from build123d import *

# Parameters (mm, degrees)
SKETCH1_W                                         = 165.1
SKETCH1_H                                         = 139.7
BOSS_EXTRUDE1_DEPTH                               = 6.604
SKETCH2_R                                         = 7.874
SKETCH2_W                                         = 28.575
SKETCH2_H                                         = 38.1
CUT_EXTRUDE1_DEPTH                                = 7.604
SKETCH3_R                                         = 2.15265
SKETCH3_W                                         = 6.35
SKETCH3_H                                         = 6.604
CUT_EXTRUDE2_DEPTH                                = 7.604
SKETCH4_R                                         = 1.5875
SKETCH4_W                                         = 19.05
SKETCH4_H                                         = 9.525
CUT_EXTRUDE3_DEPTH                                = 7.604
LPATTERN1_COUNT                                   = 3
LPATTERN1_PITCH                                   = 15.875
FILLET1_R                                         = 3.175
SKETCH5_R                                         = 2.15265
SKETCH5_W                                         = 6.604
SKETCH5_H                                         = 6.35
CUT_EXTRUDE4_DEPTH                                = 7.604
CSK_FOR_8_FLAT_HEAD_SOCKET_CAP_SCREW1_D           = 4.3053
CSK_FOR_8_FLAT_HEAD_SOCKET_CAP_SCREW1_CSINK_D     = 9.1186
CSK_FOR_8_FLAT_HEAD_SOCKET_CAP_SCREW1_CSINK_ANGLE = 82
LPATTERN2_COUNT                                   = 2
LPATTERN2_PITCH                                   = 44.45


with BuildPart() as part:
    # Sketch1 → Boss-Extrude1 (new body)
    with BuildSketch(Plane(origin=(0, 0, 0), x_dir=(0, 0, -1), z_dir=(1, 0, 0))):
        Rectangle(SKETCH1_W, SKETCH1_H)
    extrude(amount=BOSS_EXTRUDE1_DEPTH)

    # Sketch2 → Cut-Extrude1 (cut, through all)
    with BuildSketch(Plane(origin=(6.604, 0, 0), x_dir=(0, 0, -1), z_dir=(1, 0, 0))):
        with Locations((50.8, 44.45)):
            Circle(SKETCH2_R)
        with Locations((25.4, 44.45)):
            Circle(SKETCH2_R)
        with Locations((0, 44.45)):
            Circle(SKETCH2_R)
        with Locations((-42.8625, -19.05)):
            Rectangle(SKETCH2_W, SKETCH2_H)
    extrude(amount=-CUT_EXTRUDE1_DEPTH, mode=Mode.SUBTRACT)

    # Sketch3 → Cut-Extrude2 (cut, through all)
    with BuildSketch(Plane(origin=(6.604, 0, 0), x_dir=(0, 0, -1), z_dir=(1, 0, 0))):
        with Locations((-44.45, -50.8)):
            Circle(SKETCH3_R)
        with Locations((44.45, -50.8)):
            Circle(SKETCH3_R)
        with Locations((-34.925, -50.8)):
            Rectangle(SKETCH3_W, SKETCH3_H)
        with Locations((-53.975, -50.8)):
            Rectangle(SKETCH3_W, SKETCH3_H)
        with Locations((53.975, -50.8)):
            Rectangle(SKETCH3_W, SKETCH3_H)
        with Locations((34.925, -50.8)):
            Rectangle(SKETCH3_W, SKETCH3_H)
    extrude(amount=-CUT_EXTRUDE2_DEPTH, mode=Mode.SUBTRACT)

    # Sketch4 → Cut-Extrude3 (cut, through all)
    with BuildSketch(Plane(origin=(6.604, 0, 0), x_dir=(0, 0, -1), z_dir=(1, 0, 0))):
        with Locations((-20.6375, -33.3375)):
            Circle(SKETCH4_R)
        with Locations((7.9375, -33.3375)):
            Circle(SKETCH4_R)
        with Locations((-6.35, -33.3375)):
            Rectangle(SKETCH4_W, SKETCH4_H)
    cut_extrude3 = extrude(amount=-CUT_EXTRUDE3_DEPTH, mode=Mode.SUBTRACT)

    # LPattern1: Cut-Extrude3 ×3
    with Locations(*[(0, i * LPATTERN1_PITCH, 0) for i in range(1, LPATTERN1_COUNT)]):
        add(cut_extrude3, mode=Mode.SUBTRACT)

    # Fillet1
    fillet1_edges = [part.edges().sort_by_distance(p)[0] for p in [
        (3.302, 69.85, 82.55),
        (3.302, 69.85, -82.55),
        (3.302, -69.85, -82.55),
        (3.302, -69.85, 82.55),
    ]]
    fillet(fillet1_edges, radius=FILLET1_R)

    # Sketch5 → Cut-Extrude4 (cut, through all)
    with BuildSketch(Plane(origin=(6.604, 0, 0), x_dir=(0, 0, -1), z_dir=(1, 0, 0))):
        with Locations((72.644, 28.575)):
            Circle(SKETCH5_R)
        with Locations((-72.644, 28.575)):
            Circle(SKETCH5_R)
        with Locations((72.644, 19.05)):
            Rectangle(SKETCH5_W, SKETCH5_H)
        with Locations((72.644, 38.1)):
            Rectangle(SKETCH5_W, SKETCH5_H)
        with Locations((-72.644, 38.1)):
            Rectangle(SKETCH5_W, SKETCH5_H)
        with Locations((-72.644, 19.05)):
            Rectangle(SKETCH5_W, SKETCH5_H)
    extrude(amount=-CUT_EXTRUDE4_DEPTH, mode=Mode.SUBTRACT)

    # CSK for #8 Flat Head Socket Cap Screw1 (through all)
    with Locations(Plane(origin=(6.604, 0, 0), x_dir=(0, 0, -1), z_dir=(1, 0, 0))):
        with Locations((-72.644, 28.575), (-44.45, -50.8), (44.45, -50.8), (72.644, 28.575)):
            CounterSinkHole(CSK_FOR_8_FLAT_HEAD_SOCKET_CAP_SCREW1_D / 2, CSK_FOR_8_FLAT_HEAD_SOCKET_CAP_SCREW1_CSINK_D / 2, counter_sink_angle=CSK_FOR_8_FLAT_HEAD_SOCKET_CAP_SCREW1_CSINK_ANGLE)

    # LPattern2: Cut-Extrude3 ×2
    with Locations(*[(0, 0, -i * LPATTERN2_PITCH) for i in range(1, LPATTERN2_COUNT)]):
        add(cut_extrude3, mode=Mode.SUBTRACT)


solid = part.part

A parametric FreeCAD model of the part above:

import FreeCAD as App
import Part
import Sketcher

V = App.Vector
Q = App.Units.Quantity


def edges_at(feature, points):
    """Names of the edges that pass closest to the given points."""
    edges = feature.Shape.Edges
    near = lambda p: min(range(len(edges)), key=lambda i: edges[i].distToShape(Part.Vertex(*p))[0])
    return sorted({f"Edge{near(p) + 1}" for p in points})

doc = App.newDocument("Part")
params = doc.addObject("Spreadsheet::Sheet", "Params")
for row, (alias, value) in enumerate([
    ("sketch1_width", "5.5 in"),
    ("sketch1_height", "6.5 in"),
    ("pad1_length", "0.26 in"),
    ("sketch2_diameter", "0.62 in"),
    ("sketch2_width", "1.5 in"),
    ("sketch2_height", "1.125 in"),
    ("sketch3_width", "0.26 in"),
    ("sketch3_height", "0.25 in"),
    ("sketch4_diameter", "0.125 in"),
    ("sketch4_height", "0.75 in"),
    ("sketch4_width", "0.375 in"),
    ("linearpattern_pitch", "0.625 in"),
    ("fillet_radius", "0.125 in"),
    ("sketch5_width", "0.25 in"),
    ("sketch5_height", "0.26 in"),
    ("hole_diameter", "0.1695 in"),
    ("hole_csink_diameter", "0.359 in"),
    ("linearpattern2_pitch", "1.75 in"),
], start=1):
    params.set(f"A{row}", alias)
    params.set(f"B{row}", "=" + value)
    params.setAlias(f"B{row}", alias)

body = doc.addObject("PartDesign::Body", "Body")

sketch1 = body.newObject("Sketcher::SketchObject", "Sketch")
sketch1.AttachmentSupport = (doc.getObject("YZ_Plane"), [""])
sketch1.MapMode = "FlatFace"
sketch1.addGeometry([
    Part.LineSegment(V(69.85, 82.55, 0), V(-69.85, 82.55, 0)),
    Part.LineSegment(V(-69.85, 82.55, 0), V(-69.85, -82.55, 0)),
    Part.LineSegment(V(-69.85, -82.55, 0), V(69.85, -82.55, 0)),
    Part.LineSegment(V(69.85, -82.55, 0), V(69.85, 82.55, 0)),
], False)
sketch1.addConstraint([
    Sketcher.Constraint("Coincident", 0, 2, 1, 1),
    Sketcher.Constraint("Coincident", 1, 2, 2, 1),
    Sketcher.Constraint("Coincident", 2, 2, 3, 1),
    Sketcher.Constraint("Coincident", 3, 2, 0, 1),
    Sketcher.Constraint("Horizontal", 0),
    Sketcher.Constraint("Vertical", 1),
    Sketcher.Constraint("Horizontal", 2),
    Sketcher.Constraint("Vertical", 3),
    Sketcher.Constraint("Symmetric", 0, 2, 2, 2, -1, 1),
    Sketcher.Constraint("DistanceX", 0, 2, 0, 1, Q("5.5 in")),
    Sketcher.Constraint("DistanceY", 1, 2, 1, 1, Q("6.5 in")),
])
sketch1.setExpression("Constraints[9]", "Params.sketch1_width")
sketch1.setExpression("Constraints[10]", "Params.sketch1_height")
pad1 = body.newObject("PartDesign::Pad", "Pad")
pad1.Profile = sketch1
pad1.setExpression("Length", "Params.pad1_length")

sketch2 = body.newObject("Sketcher::SketchObject", "Sketch001")
sketch2.AttachmentSupport = (doc.getObject("YZ_Plane"), [""])
sketch2.MapMode = "FlatFace"
sketch2.AttachmentOffset = App.Placement(V(0, 0, 0.26 * 25.4), App.Rotation())
sketch2.addGeometry([
    Part.Circle(V(44.45, -50.8, 0), V(0, 0, 1), 7.874),
    Part.Circle(V(44.45, -25.4, 0), V(0, 0, 1), 7.874),
    Part.Circle(V(44.45, 0, 0), V(0, 0, 1), 7.874),
    Part.LineSegment(V(0, 57.15, 0), V(-38.1, 57.15, 0)),
    Part.LineSegment(V(-38.1, 57.15, 0), V(-38.1, 28.575, 0)),
    Part.LineSegment(V(-38.1, 28.575, 0), V(0, 28.575, 0)),
    Part.LineSegment(V(0, 28.575, 0), V(0, 57.15, 0)),
], False)
sketch2.addConstraint([
    Sketcher.Constraint("Coincident", 3, 2, 4, 1),
    Sketcher.Constraint("Coincident", 4, 2, 5, 1),
    Sketcher.Constraint("Coincident", 5, 2, 6, 1),
    Sketcher.Constraint("Coincident", 6, 2, 3, 1),
    Sketcher.Constraint("Horizontal", 3),
    Sketcher.Constraint("Vertical", 4),
    Sketcher.Constraint("Horizontal", 5),
    Sketcher.Constraint("Vertical", 6),
    Sketcher.Constraint("Equal", 0, 1),
    Sketcher.Constraint("Equal", 1, 2),
    Sketcher.Constraint("PointOnObject", 2, 3, -1),
    Sketcher.Constraint("PointOnObject", 5, 2, -2),
    Sketcher.Constraint("Vertical", 0, 3, 1, 3),
    Sketcher.Constraint("Vertical", 1, 3, 2, 3),
    Sketcher.Constraint("Diameter", 0, Q("0.62 in")),
    Sketcher.Constraint("DistanceX", 3, 2, 3, 1, Q("1.5 in")),
    Sketcher.Constraint("DistanceY", 0, 3, -1, 1, Q("2 in")),
    Sketcher.Constraint("DistanceY", 1, 3, -1, 1, Q("1 in")),
    Sketcher.Constraint("DistanceY", 4, 2, 4, 1, Q("1.125 in")),
    Sketcher.Constraint("DistanceX", -1, 1, 0, 3, Q("1.75 in")),
    Sketcher.Constraint("DistanceY", -1, 1, 3, 2, Q("2.25 in")),
])
sketch2.setExpression("Constraints[14]", "Params.sketch2_diameter")
sketch2.setExpression("Constraints[15]", "Params.sketch2_width")
sketch2.setExpression("Constraints[18]", "Params.sketch2_height")
pocket1 = body.newObject("PartDesign::Pocket", "Pocket")
pocket1.Profile = sketch2
pocket1.Type = "ThroughAll"

sketch3 = body.newObject("Sketcher::SketchObject", "Sketch002")
sketch3.AttachmentSupport = (doc.getObject("YZ_Plane"), [""])
sketch3.MapMode = "FlatFace"
sketch3.AttachmentOffset = App.Placement(V(0, 0, 0.26 * 25.4), App.Rotation())
sketch3.addGeometry([
    Part.Circle(V(-50.8, 44.45, 0), V(0, 0, 1), 2.15265),
    Part.Circle(V(-50.8, -44.45, 0), V(0, 0, 1), 2.15265),
    Part.LineSegment(V(-47.498, 38.1, 0), V(-54.102, 38.1, 0)),
    Part.LineSegment(V(-54.102, 38.1, 0), V(-54.102, 31.75, 0)),
    Part.LineSegment(V(-54.102, 31.75, 0), V(-47.498, 31.75, 0)),
    Part.LineSegment(V(-47.498, 31.75, 0), V(-47.498, 38.1, 0)),
    Part.LineSegment(V(-47.498, 57.15, 0), V(-54.102, 57.15, 0)),
    Part.LineSegment(V(-54.102, 57.15, 0), V(-54.102, 50.8, 0)),
    Part.LineSegment(V(-54.102, 50.8, 0), V(-47.498, 50.8, 0)),
    Part.LineSegment(V(-47.498, 50.8, 0), V(-47.498, 57.15, 0)),
    Part.LineSegment(V(-47.498, -50.8, 0), V(-54.102, -50.8, 0)),
    Part.LineSegment(V(-54.102, -50.8, 0), V(-54.102, -57.15, 0)),
    Part.LineSegment(V(-54.102, -57.15, 0), V(-47.498, -57.15, 0)),
    Part.LineSegment(V(-47.498, -57.15, 0), V(-47.498, -50.8, 0)),
    Part.LineSegment(V(-47.498, -31.75, 0), V(-54.102, -31.75, 0)),
    Part.LineSegment(V(-54.102, -31.75, 0), V(-54.102, -38.1, 0)),
    Part.LineSegment(V(-54.102, -38.1, 0), V(-47.498, -38.1, 0)),
    Part.LineSegment(V(-47.498, -38.1, 0), V(-47.498, -31.75, 0)),
], False)
sketch3.addConstraint([
    Sketcher.Constraint("Coincident", 2, 2, 3, 1),
    Sketcher.Constraint("Coincident", 3, 2, 4, 1),
    Sketcher.Constraint("Coincident", 4, 2, 5, 1),
    Sketcher.Constraint("Coincident", 5, 2, 2, 1),
    Sketcher.Constraint("Coincident", 6, 2, 7, 1),
    Sketcher.Constraint("Coincident", 7, 2, 8, 1),
    Sketcher.Constraint("Coincident", 8, 2, 9, 1),
    Sketcher.Constraint("Coincident", 9, 2, 6, 1),
    Sketcher.Constraint("Coincident", 10, 2, 11, 1),
    Sketcher.Constraint("Coincident", 11, 2, 12, 1),
    Sketcher.Constraint("Coincident", 12, 2, 13, 1),
    Sketcher.Constraint("Coincident", 13, 2, 10, 1),
    Sketcher.Constraint("Coincident", 14, 2, 15, 1),
    Sketcher.Constraint("Coincident", 15, 2, 16, 1),
    Sketcher.Constraint("Coincident", 16, 2, 17, 1),
    Sketcher.Constraint("Coincident", 17, 2, 14, 1),
    Sketcher.Constraint("Horizontal", 2),
    Sketcher.Constraint("Vertical", 3),
    Sketcher.Constraint("Horizontal", 4),
    Sketcher.Constraint("Vertical", 5),
    Sketcher.Constraint("Horizontal", 6),
    Sketcher.Constraint("Vertical", 7),
    Sketcher.Constraint("Horizontal", 8),
    Sketcher.Constraint("Vertical", 9),
    Sketcher.Constraint("Horizontal", 10),
    Sketcher.Constraint("Vertical", 11),
    Sketcher.Constraint("Horizontal", 12),
    Sketcher.Constraint("Vertical", 13),
    Sketcher.Constraint("Horizontal", 14),
    Sketcher.Constraint("Vertical", 15),
    Sketcher.Constraint("Horizontal", 16),
    Sketcher.Constraint("Vertical", 17),
    Sketcher.Constraint("Equal", 0, 1),
    Sketcher.Constraint("Symmetric", 0, 3, 1, 3, -1),
    Sketcher.Constraint("Symmetric", 7, 2, 10, 2, -1),
    Sketcher.Constraint("Symmetric", 9, 2, 12, 2, -1),
    Sketcher.Constraint("Symmetric", 3, 2, 14, 2, -1),
    Sketcher.Constraint("Symmetric", 5, 2, 16, 2, -1),
    Sketcher.Constraint("Vertical", 3, 2, 6, 2),
    Sketcher.Constraint("Vertical", 5, 2, 8, 2),
    Sketcher.Constraint("Equal", 5, 7),
    Sketcher.Constraint("DistanceX", 0, 3, -1, 1, Q("2 in")),
    Sketcher.Constraint("DistanceY", -1, 1, 7, 2, Q("2 in")),
    Sketcher.Constraint("DistanceY", 1, 3, 3, 2, Q("3 in")),
    Sketcher.Constraint("DistanceY", 3, 2, 6, 2, Q("1 in")),
    Sketcher.Constraint("Diameter", 0, Q("0.1695 in")),
    Sketcher.Constraint("DistanceX", 2, 2, 2, 1, Q("0.26 in")),
    Sketcher.Constraint("DistanceY", 3, 2, 3, 1, Q("0.25 in")),
    Sketcher.Constraint("DistanceX", 2, 2, -1, 1, Q("2.13 in")),
])
sketch3.setExpression("Constraints[46]", "Params.sketch3_width")
sketch3.setExpression("Constraints[47]", "Params.sketch3_height")
pocket2 = body.newObject("PartDesign::Pocket", "Pocket001")
pocket2.Profile = sketch3
pocket2.Type = "ThroughAll"

sketch4 = body.newObject("Sketcher::SketchObject", "Sketch003")
sketch4.AttachmentSupport = (doc.getObject("YZ_Plane"), [""])
sketch4.MapMode = "FlatFace"
sketch4.AttachmentOffset = App.Placement(V(0, 0, 0.26 * 25.4), App.Rotation())
sketch4.addGeometry([
    Part.Circle(V(-33.3375, 20.6375, 0), V(0, 0, 1), 1.5875),
    Part.Circle(V(-33.3375, -7.9375, 0), V(0, 0, 1), 1.5875),
    Part.LineSegment(V(-28.575, 15.875, 0), V(-38.1, 15.875, 0)),
    Part.LineSegment(V(-38.1, 15.875, 0), V(-38.1, -3.175, 0)),
    Part.LineSegment(V(-38.1, -3.175, 0), V(-28.575, -3.175, 0)),
    Part.LineSegment(V(-28.575, -3.175, 0), V(-28.575, 15.875, 0)),
], False)
sketch4.addConstraint([
    Sketcher.Constraint("Coincident", 2, 2, 3, 1),
    Sketcher.Constraint("Coincident", 3, 2, 4, 1),
    Sketcher.Constraint("Coincident", 4, 2, 5, 1),
    Sketcher.Constraint("Coincident", 5, 2, 2, 1),
    Sketcher.Constraint("Horizontal", 2),
    Sketcher.Constraint("Vertical", 3),
    Sketcher.Constraint("Horizontal", 4),
    Sketcher.Constraint("Vertical", 5),
    Sketcher.Constraint("Equal", 0, 1),
    Sketcher.Constraint("Vertical", 0, 3, 1, 3),
    Sketcher.Constraint("Diameter", 0, Q("0.125 in")),
    Sketcher.Constraint("DistanceY", 3, 2, 3, 1, Q("0.75 in")),
    Sketcher.Constraint("DistanceX", 2, 2, -1, 1, Q("1.5 in")),
    Sketcher.Constraint("DistanceX", 2, 2, 2, 1, Q("0.375 in")),
    Sketcher.Constraint("DistanceX", 0, 3, -1, 1, Q("1.3125 in")),
    Sketcher.Constraint("DistanceY", -1, 1, 0, 3, Q("0.8125 in")),
    Sketcher.Constraint("DistanceY", 1, 3, -1, 1, Q("0.3125 in")),
    Sketcher.Constraint("DistanceY", -1, 1, 2, 2, Q("0.625 in")),
])
sketch4.setExpression("Constraints[10]", "Params.sketch4_diameter")
sketch4.setExpression("Constraints[11]", "Params.sketch4_height")
sketch4.setExpression("Constraints[13]", "Params.sketch4_width")
pocket3 = body.newObject("PartDesign::Pocket", "Pocket002")
pocket3.Profile = sketch4
pocket3.Type = "ThroughAll"
doc.recompute()

linearpattern = body.newObject("PartDesign::LinearPattern", "LinearPattern")
linearpattern.Originals = [pocket3]
linearpattern.Direction = (doc.getObject("Y_Axis"), [""])
linearpattern.Mode = "offset"
linearpattern.setExpression("Offset", "Params.linearpattern_pitch")
linearpattern.Occurrences = 3
body.Tip = linearpattern
doc.recompute()

fillet = body.newObject("PartDesign::Fillet", "Fillet")
fillet.Base = (linearpattern, edges_at(linearpattern, [
    (3.302, 69.85, 82.55),
    (3.302, 69.85, -82.55),
    (3.302, -69.85, -82.55),
    (3.302, -69.85, 82.55),
]))
fillet.setExpression("Radius", "Params.fillet_radius")

sketch5 = body.newObject("Sketcher::SketchObject", "Sketch004")
sketch5.AttachmentSupport = (doc.getObject("YZ_Plane"), [""])
sketch5.MapMode = "FlatFace"
sketch5.AttachmentOffset = App.Placement(V(0, 0, 0.26 * 25.4), App.Rotation())
sketch5.addGeometry([
    Part.Circle(V(28.575, -72.644, 0), V(0, 0, 1), 2.15265),
    Part.Circle(V(28.575, 72.644, 0), V(0, 0, 1), 2.15265),
    Part.LineSegment(V(22.225, -69.342, 0), V(15.875, -69.342, 0)),
    Part.LineSegment(V(15.875, -69.342, 0), V(15.875, -75.946, 0)),
    Part.LineSegment(V(15.875, -75.946, 0), V(22.225, -75.946, 0)),
    Part.LineSegment(V(22.225, -75.946, 0), V(22.225, -69.342, 0)),
    Part.LineSegment(V(41.275, -69.342, 0), V(34.925, -69.342, 0)),
    Part.LineSegment(V(34.925, -69.342, 0), V(34.925, -75.946, 0)),
    Part.LineSegment(V(34.925, -75.946, 0), V(41.275, -75.946, 0)),
    Part.LineSegment(V(41.275, -75.946, 0), V(41.275, -69.342, 0)),
    Part.LineSegment(V(41.275, 75.946, 0), V(34.925, 75.946, 0)),
    Part.LineSegment(V(34.925, 75.946, 0), V(34.925, 69.342, 0)),
    Part.LineSegment(V(34.925, 69.342, 0), V(41.275, 69.342, 0)),
    Part.LineSegment(V(41.275, 69.342, 0), V(41.275, 75.946, 0)),
    Part.LineSegment(V(22.225, 75.946, 0), V(15.875, 75.946, 0)),
    Part.LineSegment(V(15.875, 75.946, 0), V(15.875, 69.342, 0)),
    Part.LineSegment(V(15.875, 69.342, 0), V(22.225, 69.342, 0)),
    Part.LineSegment(V(22.225, 69.342, 0), V(22.225, 75.946, 0)),
], False)
sketch5.addConstraint([
    Sketcher.Constraint("Coincident", 2, 2, 3, 1),
    Sketcher.Constraint("Coincident", 3, 2, 4, 1),
    Sketcher.Constraint("Coincident", 4, 2, 5, 1),
    Sketcher.Constraint("Coincident", 5, 2, 2, 1),
    Sketcher.Constraint("Coincident", 6, 2, 7, 1),
    Sketcher.Constraint("Coincident", 7, 2, 8, 1),
    Sketcher.Constraint("Coincident", 8, 2, 9, 1),
    Sketcher.Constraint("Coincident", 9, 2, 6, 1),
    Sketcher.Constraint("Coincident", 10, 2, 11, 1),
    Sketcher.Constraint("Coincident", 11, 2, 12, 1),
    Sketcher.Constraint("Coincident", 12, 2, 13, 1),
    Sketcher.Constraint("Coincident", 13, 2, 10, 1),
    Sketcher.Constraint("Coincident", 14, 2, 15, 1),
    Sketcher.Constraint("Coincident", 15, 2, 16, 1),
    Sketcher.Constraint("Coincident", 16, 2, 17, 1),
    Sketcher.Constraint("Coincident", 17, 2, 14, 1),
    Sketcher.Constraint("Horizontal", 2),
    Sketcher.Constraint("Vertical", 3),
    Sketcher.Constraint("Horizontal", 4),
    Sketcher.Constraint("Vertical", 5),
    Sketcher.Constraint("Horizontal", 6),
    Sketcher.Constraint("Vertical", 7),
    Sketcher.Constraint("Horizontal", 8),
    Sketcher.Constraint("Vertical", 9),
    Sketcher.Constraint("Horizontal", 10),
    Sketcher.Constraint("Vertical", 11),
    Sketcher.Constraint("Horizontal", 12),
    Sketcher.Constraint("Vertical", 13),
    Sketcher.Constraint("Horizontal", 14),
    Sketcher.Constraint("Vertical", 15),
    Sketcher.Constraint("Horizontal", 16),
    Sketcher.Constraint("Vertical", 17),
    Sketcher.Constraint("Equal", 0, 1),
    Sketcher.Constraint("Symmetric", 0, 3, 1, 3, -1),
    Sketcher.Constraint("Symmetric", 7, 2, 10, 2, -1),
    Sketcher.Constraint("Symmetric", 9, 2, 12, 2, -1),
    Sketcher.Constraint("Symmetric", 3, 2, 14, 2, -1),
    Sketcher.Constraint("Symmetric", 5, 2, 16, 2, -1),
    Sketcher.Constraint("Horizontal", 5, 2, 6, 2),
    Sketcher.Constraint("Horizontal", 4, 2, 7, 2),
    Sketcher.Constraint("Equal", 4, 6),
    Sketcher.Constraint("DistanceX", 14, 2, 13, 2, Q("1 in")),
    Sketcher.Constraint("Diameter", 0, Q("0.1695 in")),
    Sketcher.Constraint("DistanceX", 2, 2, 2, 1, Q("0.25 in")),
    Sketcher.Constraint("DistanceY", 3, 2, 3, 1, Q("0.26 in")),
    Sketcher.Constraint("DistanceX", 2, 2, 0, 3, Q("0.5 in")),
    Sketcher.Constraint("DistanceY", 0, 3, -1, 1, Q("2.86 in")),
    Sketcher.Constraint("DistanceY", 2, 2, -1, 1, Q("2.73 in")),
    Sketcher.Constraint("DistanceX", -1, 1, 0, 3, Q("1.125 in")),
])
sketch5.setExpression("Constraints[43]", "Params.sketch5_width")
sketch5.setExpression("Constraints[44]", "Params.sketch5_height")
pocket4 = body.newObject("PartDesign::Pocket", "Pocket003")
pocket4.Profile = sketch5
pocket4.Type = "ThroughAll"

sketch6 = body.newObject("Sketcher::SketchObject", "Sketch005")
sketch6.AttachmentSupport = (doc.getObject("YZ_Plane"), [""])
sketch6.MapMode = "FlatFace"
sketch6.AttachmentOffset = App.Placement(V(0, 0, 0.26 * 25.4), App.Rotation())
sketch6.addGeometry([
    Part.Circle(V(28.575, 72.644, 0), V(0, 0, 1), 2.15265),
    Part.Circle(V(-50.8, 44.45, 0), V(0, 0, 1), 2.15265),
    Part.Circle(V(-50.8, -44.45, 0), V(0, 0, 1), 2.15265),
    Part.Circle(V(28.575, -72.644, 0), V(0, 0, 1), 2.15265),
], False)
sketch6.addConstraint([
    Sketcher.Constraint("Equal", 0, 1),
    Sketcher.Constraint("Equal", 1, 2),
    Sketcher.Constraint("Equal", 2, 3),
    Sketcher.Constraint("Symmetric", 1, 3, 2, 3, -1),
    Sketcher.Constraint("Symmetric", 0, 3, 3, 3, -1),
    Sketcher.Constraint("DistanceX", 1, 3, -1, 1, Q("2 in")),
    Sketcher.Constraint("Diameter", 0, Q("0.1695 in")),
    Sketcher.Constraint("DistanceY", 2, 3, 1, 3, Q("3.5 in")),
    Sketcher.Constraint("DistanceY", -1, 1, 0, 3, Q("2.86 in")),
    Sketcher.Constraint("DistanceX", -1, 1, 0, 3, Q("1.125 in")),
])
doc.recompute()
hole = body.newObject("PartDesign::Hole", "Hole")
hole.Profile = sketch6
hole.ThreadType = "None"
hole.setExpression("Diameter", "Params.hole_diameter")
hole.DepthType = "ThroughAll"
hole.HoleCutType = "Countersink"
hole.setExpression("HoleCutDiameter", "Params.hole_csink_diameter")
hole.HoleCutCountersinkAngle = 82
doc.recompute()

linearpattern2 = body.newObject("PartDesign::LinearPattern", "LinearPattern001")
linearpattern2.Originals = [pocket3]
linearpattern2.Direction = (doc.getObject("Z_Axis"), [""])
linearpattern2.Mode = "offset"
linearpattern2.setExpression("Offset", "Params.linearpattern2_pitch")
linearpattern2.Occurrences = 2
linearpattern2.Reversed = True
body.Tip = linearpattern2

doc.recompute()
